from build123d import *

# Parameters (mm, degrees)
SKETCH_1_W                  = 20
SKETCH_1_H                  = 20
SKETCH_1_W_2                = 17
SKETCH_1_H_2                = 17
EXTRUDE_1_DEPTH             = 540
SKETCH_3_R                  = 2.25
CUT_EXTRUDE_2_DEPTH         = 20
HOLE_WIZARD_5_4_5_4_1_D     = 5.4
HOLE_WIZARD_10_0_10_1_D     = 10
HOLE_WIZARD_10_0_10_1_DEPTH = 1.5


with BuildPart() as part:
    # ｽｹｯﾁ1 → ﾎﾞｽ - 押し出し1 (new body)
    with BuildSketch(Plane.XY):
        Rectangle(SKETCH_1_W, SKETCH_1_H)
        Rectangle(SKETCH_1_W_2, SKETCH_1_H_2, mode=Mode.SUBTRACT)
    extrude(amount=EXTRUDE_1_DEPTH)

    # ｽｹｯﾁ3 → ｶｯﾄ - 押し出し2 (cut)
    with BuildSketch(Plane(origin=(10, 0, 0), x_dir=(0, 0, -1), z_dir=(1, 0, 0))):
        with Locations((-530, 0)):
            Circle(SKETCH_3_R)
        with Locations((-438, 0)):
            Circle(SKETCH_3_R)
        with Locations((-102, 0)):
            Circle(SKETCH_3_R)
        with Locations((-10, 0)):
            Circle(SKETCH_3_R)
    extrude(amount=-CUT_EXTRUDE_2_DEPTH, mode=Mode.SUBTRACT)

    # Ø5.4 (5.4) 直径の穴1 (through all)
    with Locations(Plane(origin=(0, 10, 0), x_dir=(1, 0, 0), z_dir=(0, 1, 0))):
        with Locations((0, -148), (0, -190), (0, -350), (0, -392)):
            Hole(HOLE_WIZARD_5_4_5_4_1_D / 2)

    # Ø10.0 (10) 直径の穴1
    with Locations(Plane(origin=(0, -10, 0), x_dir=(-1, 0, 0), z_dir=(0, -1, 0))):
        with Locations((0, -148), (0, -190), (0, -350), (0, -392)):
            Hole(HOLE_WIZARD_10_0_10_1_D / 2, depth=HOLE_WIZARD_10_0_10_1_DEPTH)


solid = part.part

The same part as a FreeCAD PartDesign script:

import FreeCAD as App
import Part
import Sketcher

V = App.Vector

doc = App.newDocument("Part")
body = doc.addObject("PartDesign::Body", "Body")

# Sketch on XY plane
sketch1 = body.newObject("Sketcher::SketchObject", "Sketch")
sketch1.AttachmentSupport = (doc.getObject("XY_Plane"), [""])
sketch1.MapMode = "FlatFace"
sketch1.addGeometry(Part.LineSegment(V(-10, 10, 0), V(-10, -10, 0)), False)
sketch1.addGeometry(Part.LineSegment(V(-10, -10, 0), V(10, -10, 0)), False)
sketch1.addGeometry(Part.LineSegment(V(10, -10, 0), V(10, 10, 0)), False)
sketch1.addGeometry(Part.LineSegment(V(10, 10, 0), V(-10, 10, 0)), False)
sketch1.addGeometry(Part.LineSegment(V(8, -8, 0), V(-8, -8, 0)), False)
sketch1.addGeometry(Part.LineSegment(V(-8, -8, 0), V(-8, 8, 0)), False)
sketch1.addGeometry(Part.LineSegment(V(-8, 8, 0), V(8, 8, 0)), False)
sketch1.addGeometry(Part.LineSegment(V(8, 8, 0), V(8, -8, 0)), False)
sketch1.addConstraint(Sketcher.Constraint("Coincident", 0, 2, 1, 1))
sketch1.addConstraint(Sketcher.Constraint("Coincident", 1, 2, 2, 1))
sketch1.addConstraint(Sketcher.Constraint("Coincident", 2, 2, 3, 1))
sketch1.addConstraint(Sketcher.Constraint("Coincident", 3, 2, 0, 1))
sketch1.addConstraint(Sketcher.Constraint("Coincident", 4, 2, 5, 1))
sketch1.addConstraint(Sketcher.Constraint("Coincident", 5, 2, 6, 1))
sketch1.addConstraint(Sketcher.Constraint("Coincident", 6, 2, 7, 1))
sketch1.addConstraint(Sketcher.Constraint("Coincident", 7, 2, 4, 1))
sketch1.addConstraint(Sketcher.Constraint("Vertical", 0))
sketch1.addConstraint(Sketcher.Constraint("Horizontal", 1))
sketch1.addConstraint(Sketcher.Constraint("Vertical", 2))
sketch1.addConstraint(Sketcher.Constraint("Horizontal", 3))
sketch1.addConstraint(Sketcher.Constraint("Horizontal", 4))
sketch1.addConstraint(Sketcher.Constraint("Vertical", 5))
sketch1.addConstraint(Sketcher.Constraint("Horizontal", 6))
sketch1.addConstraint(Sketcher.Constraint("Vertical", 7))
sketch1.addConstraint(Sketcher.Constraint("Symmetric", 0, 2, 2, 2, -1, 1))
sketch1.addConstraint(Sketcher.Constraint("Symmetric", 4, 2, 6, 2, -1, 1))
sketch1.addConstraint(Sketcher.Constraint("Equal", 3, 0))
sketch1.addConstraint(Sketcher.Constraint("Equal", 6, 5))
sketch1.addConstraint(Sketcher.Constraint("DistanceX", 1, 1, 1, 2, 20.0))
sketch1.addConstraint(Sketcher.Constraint("DistanceX", 4, 2, 4, 1, 17.0))
pad1 = body.newObject("PartDesign::Pad", "Pad")
pad1.Profile = sketch1
pad1.Length = 540

# Sketch on YZ plane
sketch2 = body.newObject("Sketcher::SketchObject", "Sketch001")
sketch2.AttachmentSupport = (doc.getObject("YZ_Plane"), [""])
sketch2.MapMode = "FlatFace"
sketch2.AttachmentOffset = App.Placement(V(0, 0, 10), App.Rotation())
sketch2.addGeometry(Part.Circle(V(0, 530, 0), V(0, 0, 1), 2.2), False)
sketch2.addGeometry(Part.Circle(V(0, 438, 0), V(0, 0, 1), 2.2), False)
sketch2.addGeometry(Part.Circle(V(0, 102, 0), V(0, 0, 1), 2.2), False)
sketch2.addGeometry(Part.Circle(V(0, 10, 0), V(0, 0, 1), 2.2), False)
sketch2.addConstraint(Sketcher.Constraint("Equal", 0, 1))
sketch2.addConstraint(Sketcher.Constraint("Equal", 1, 2))
sketch2.addConstraint(Sketcher.Constraint("Equal", 2, 3))
sketch2.addConstraint(Sketcher.Constraint("PointOnObject", 0, 3, -2))
sketch2.addConstraint(Sketcher.Constraint("PointOnObject", 1, 3, -2))
sketch2.addConstraint(Sketcher.Constraint("PointOnObject", 2, 3, -2))
sketch2.addConstraint(Sketcher.Constraint("PointOnObject", 3, 3, -2))
sketch2.addConstraint(Sketcher.Constraint("Diameter", 0, 4.5))
sketch2.addConstraint(Sketcher.Constraint("DistanceY", -1, 1, 0, 3, 530.0))
sketch2.addConstraint(Sketcher.Constraint("DistanceY", -1, 1, 1, 3, 438.0))
sketch2.addConstraint(Sketcher.Constraint("DistanceY", -1, 1, 2, 3, 102.0))
sketch2.addConstraint(Sketcher.Constraint("DistanceY", -1, 1, 3, 3, 10.0))
pocket1 = body.newObject("PartDesign::Pocket", "Pocket")
pocket1.Profile = sketch2
pocket1.Length = 20

# Sketch on XZ plane
sketch3 = body.newObject("Sketcher::SketchObject", "Sketch002")
sketch3.AttachmentSupport = (doc.getObject("XZ_Plane"), [""])
sketch3.MapMode = "FlatFace"
sketch3.AttachmentOffset = App.Placement(V(0, 0, -10), App.Rotation())
sketch3.addGeometry(Part.Circle(V(0, 148, 0), V(0, 0, 1), 2.7), False)
sketch3.addGeometry(Part.Circle(V(0, 190, 0), V(0, 0, 1), 2.7), False)
sketch3.addGeometry(Part.Circle(V(0, 350, 0), V(0, 0, 1), 2.7), False)
sketch3.addGeometry(Part.Circle(V(0, 392, 0), V(0, 0, 1), 2.7), False)
sketch3.addConstraint(Sketcher.Constraint("Equal", 0, 1))
sketch3.addConstraint(Sketcher.Constraint("Equal", 1, 2))
sketch3.addConstraint(Sketcher.Constraint("Equal", 2, 3))
sketch3.addConstraint(Sketcher.Constraint("PointOnObject", 0, 3, -2))
sketch3.addConstraint(Sketcher.Constraint("PointOnObject", 1, 3, -2))
sketch3.addConstraint(Sketcher.Constraint("PointOnObject", 2, 3, -2))
sketch3.addConstraint(Sketcher.Constraint("PointOnObject", 3, 3, -2))
sketch3.addConstraint(Sketcher.Constraint("Diameter", 0, 5.4))
sketch3.addConstraint(Sketcher.Constraint("DistanceY", -1, 1, 0, 3, 148.0))
sketch3.addConstraint(Sketcher.Constraint("DistanceY", -1, 1, 1, 3, 190.0))
sketch3.addConstraint(Sketcher.Constraint("DistanceY", -1, 1, 2, 3, 350.0))
sketch3.addConstraint(Sketcher.Constraint("DistanceY", -1, 1, 3, 3, 392.0))
doc.recompute()
hole = body.newObject("PartDesign::Hole", "Hole")
hole.Profile = sketch3
hole.ThreadType = "None"
hole.Diameter = 5.4
hole.DepthType = "ThroughAll"
hole.Reversed = True

# Sketch on XZ plane
sketch4 = body.newObject("Sketcher::SketchObject", "Sketch003")
sketch4.AttachmentSupport = (doc.getObject("XZ_Plane"), [""])
sketch4.MapMode = "FlatFace"
sketch4.AttachmentOffset = App.Placement(V(0, 0, 10), App.Rotation())
sketch4.addGeometry(Part.Circle(V(0, 148, 0), V(0, 0, 1), 5), False)
sketch4.addGeometry(Part.Circle(V(0, 190, 0), V(0, 0, 1), 5), False)
sketch4.addGeometry(Part.Circle(V(0, 350, 0), V(0, 0, 1), 5), False)
sketch4.addGeometry(Part.Circle(V(0, 392, 0), V(0, 0, 1), 5), False)
sketch4.addConstraint(Sketcher.Constraint("Equal", 0, 1))
sketch4.addConstraint(Sketcher.Constraint("Equal", 1, 2))
sketch4.addConstraint(Sketcher.Constraint("Equal", 2, 3))
sketch4.addConstraint(Sketcher.Constraint("PointOnObject", 0, 3, -2))
sketch4.addConstraint(Sketcher.Constraint("PointOnObject", 1, 3, -2))
sketch4.addConstraint(Sketcher.Constraint("PointOnObject", 2, 3, -2))
sketch4.addConstraint(Sketcher.Constraint("PointOnObject", 3, 3, -2))
sketch4.addConstraint(Sketcher.Constraint("Diameter", 0, 10.0))
sketch4.addConstraint(Sketcher.Constraint("DistanceY", -1, 1, 0, 3, 148.0))
sketch4.addConstraint(Sketcher.Constraint("DistanceY", -1, 1, 1, 3, 190.0))
sketch4.addConstraint(Sketcher.Constraint("DistanceY", -1, 1, 2, 3, 350.0))
sketch4.addConstraint(Sketcher.Constraint("DistanceY", -1, 1, 3, 3, 392.0))
doc.recompute()
hole2 = body.newObject("PartDesign::Hole", "Hole001")
hole2.Profile = sketch4
hole2.ThreadType = "None"
hole2.Diameter = 10
hole2.DepthType = "Dimension"
hole2.Depth = 1.5
hole2.DrillPoint = "Flat"

doc.recompute()
